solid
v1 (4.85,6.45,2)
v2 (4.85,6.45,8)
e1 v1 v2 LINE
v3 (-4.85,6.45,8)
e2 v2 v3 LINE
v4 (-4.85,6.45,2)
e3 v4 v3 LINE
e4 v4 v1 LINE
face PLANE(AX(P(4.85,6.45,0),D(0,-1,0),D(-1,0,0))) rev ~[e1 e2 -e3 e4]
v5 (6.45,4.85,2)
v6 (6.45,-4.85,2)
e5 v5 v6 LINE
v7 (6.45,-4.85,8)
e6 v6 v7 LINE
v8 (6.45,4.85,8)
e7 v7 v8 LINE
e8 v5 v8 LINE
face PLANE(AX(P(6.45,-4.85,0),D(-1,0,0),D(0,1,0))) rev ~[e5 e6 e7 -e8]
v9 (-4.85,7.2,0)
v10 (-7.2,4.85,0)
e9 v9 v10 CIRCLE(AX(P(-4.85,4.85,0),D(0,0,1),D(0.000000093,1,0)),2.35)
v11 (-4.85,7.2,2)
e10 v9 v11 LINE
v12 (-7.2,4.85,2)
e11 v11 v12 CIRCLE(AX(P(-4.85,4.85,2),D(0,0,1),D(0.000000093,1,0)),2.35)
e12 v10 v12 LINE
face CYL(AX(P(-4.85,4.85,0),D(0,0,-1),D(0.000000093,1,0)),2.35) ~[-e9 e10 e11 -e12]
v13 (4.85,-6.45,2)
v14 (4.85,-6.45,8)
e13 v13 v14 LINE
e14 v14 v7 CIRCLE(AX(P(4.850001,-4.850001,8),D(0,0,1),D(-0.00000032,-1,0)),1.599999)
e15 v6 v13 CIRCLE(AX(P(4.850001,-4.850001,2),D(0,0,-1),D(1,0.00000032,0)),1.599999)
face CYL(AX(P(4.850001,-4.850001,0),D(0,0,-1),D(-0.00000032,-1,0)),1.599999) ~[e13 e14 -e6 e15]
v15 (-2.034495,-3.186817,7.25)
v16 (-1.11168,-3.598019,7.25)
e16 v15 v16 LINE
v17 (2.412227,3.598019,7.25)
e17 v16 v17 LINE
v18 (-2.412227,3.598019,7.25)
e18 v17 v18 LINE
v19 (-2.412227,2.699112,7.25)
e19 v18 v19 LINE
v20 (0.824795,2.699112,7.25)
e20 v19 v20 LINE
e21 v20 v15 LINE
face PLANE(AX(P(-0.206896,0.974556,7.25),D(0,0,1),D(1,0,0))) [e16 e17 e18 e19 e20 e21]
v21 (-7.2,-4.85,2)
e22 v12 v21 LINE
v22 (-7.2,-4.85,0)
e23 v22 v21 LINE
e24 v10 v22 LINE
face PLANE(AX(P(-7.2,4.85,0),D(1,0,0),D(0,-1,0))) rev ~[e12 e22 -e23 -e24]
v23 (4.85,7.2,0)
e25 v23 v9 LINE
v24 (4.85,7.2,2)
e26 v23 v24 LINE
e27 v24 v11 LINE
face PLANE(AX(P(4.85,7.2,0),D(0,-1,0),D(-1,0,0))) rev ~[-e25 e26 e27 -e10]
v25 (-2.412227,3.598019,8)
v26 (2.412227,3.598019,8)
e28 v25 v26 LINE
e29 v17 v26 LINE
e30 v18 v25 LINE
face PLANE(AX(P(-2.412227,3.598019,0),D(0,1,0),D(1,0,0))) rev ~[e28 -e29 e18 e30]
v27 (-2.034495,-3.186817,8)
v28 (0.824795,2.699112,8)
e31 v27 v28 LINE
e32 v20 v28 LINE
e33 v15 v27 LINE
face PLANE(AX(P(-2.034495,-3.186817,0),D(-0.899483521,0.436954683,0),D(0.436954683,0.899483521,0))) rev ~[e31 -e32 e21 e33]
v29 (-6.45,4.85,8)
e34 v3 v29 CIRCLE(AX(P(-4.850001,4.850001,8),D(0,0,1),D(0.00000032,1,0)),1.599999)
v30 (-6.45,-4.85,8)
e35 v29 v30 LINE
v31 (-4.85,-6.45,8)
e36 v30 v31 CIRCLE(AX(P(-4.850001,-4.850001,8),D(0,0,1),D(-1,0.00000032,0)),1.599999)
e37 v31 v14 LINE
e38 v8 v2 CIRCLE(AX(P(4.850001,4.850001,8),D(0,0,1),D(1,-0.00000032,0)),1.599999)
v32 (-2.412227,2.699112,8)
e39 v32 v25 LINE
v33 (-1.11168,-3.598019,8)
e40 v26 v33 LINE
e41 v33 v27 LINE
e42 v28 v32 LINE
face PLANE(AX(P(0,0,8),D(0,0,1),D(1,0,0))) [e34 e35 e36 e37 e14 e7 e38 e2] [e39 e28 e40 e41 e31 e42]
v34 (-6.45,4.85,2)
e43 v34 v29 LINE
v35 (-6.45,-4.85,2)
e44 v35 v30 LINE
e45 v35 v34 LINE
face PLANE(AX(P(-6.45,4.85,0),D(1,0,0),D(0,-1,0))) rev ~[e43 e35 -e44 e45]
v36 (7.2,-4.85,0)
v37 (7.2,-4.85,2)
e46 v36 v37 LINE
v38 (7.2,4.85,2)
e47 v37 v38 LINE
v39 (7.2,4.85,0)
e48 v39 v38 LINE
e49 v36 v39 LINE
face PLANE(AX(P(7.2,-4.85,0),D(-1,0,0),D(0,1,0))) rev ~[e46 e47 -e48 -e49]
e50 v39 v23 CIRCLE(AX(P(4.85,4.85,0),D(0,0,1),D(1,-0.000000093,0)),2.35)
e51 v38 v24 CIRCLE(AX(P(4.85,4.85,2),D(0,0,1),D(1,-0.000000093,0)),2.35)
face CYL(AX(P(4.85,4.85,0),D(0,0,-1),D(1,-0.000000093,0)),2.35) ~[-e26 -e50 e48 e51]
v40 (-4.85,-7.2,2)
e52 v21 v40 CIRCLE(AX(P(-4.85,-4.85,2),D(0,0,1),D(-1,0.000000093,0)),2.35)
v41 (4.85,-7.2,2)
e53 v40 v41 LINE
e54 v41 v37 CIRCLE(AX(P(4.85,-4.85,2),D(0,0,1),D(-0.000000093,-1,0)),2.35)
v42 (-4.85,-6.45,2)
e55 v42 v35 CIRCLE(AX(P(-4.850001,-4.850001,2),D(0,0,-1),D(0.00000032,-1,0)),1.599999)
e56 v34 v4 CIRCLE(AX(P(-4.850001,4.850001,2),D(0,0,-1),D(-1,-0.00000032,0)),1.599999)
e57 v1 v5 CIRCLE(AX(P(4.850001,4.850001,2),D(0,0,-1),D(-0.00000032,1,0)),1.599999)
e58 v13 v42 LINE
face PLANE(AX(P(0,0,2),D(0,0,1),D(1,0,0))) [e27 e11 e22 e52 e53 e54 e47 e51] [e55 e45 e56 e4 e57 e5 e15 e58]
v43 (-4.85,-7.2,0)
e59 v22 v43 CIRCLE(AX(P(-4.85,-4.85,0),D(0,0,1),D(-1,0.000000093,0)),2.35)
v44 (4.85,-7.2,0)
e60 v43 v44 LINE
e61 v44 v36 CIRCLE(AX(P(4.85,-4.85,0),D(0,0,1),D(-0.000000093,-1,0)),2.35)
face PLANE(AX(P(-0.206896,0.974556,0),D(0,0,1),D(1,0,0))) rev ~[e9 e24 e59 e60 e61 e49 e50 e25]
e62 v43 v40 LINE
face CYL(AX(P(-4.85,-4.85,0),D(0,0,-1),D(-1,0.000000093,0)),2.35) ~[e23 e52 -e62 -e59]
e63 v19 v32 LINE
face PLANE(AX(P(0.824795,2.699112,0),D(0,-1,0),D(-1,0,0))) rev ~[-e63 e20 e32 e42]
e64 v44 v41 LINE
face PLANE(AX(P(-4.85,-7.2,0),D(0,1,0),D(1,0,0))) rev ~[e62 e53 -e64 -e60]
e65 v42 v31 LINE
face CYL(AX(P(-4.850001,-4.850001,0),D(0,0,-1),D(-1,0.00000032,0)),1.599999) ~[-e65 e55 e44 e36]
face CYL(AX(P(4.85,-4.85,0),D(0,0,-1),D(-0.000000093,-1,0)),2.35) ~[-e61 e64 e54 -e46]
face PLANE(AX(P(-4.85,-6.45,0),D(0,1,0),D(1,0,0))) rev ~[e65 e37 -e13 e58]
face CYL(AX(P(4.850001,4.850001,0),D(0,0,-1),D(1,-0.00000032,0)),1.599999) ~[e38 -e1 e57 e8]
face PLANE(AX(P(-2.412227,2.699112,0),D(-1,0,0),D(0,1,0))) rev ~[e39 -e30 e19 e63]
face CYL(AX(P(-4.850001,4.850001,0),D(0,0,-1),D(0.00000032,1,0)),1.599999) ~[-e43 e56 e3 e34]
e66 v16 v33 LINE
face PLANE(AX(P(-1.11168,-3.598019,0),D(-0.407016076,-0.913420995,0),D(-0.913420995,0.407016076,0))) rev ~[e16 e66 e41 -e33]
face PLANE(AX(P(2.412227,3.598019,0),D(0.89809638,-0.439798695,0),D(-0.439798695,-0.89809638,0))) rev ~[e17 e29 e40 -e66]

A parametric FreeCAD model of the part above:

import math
import FreeCAD as App
import Part
import Sketcher
from FreeCAD import Vector


def add_polygon(sketch, points):
    """Adds a closed chain of lines whose ends are joined by coincident constraints."""
    first, n = sketch.GeometryCount, len(points)
    for a, b in zip(points, points[1:] + points[:1]):
        sketch.addGeometry(Part.LineSegment(App.Vector(*a, 0), App.Vector(*b, 0)), False)
    for i in range(n):
        sketch.addConstraint(Sketcher.Constraint("Coincident", first + i, 2, first + (i + 1) % n, 1))

doc = App.newDocument("Part")
params = doc.addObject("Spreadsheet::Sheet", "Params")
for row, (alias, value) in enumerate([
    ("sketch1_radius", "1.599999 mm"),
    ("sketch1_radius2", "2.35 mm"),
    ("sketch1_width", "9.7 mm"),
    ("pad1_length", "2 mm"),
    ("sketch2_radius", "1.599999 mm"),
    ("sketch2_width", "9.7 mm"),
    ("pad2_length", "8 mm"),
    ("pad3_length", "7.25 mm"),
], start=1):
    params.set(f"A{row}", alias)
    params.set(f"B{row}", "=" + value)
    params.setAlias(f"B{row}", alias)

body = doc.addObject("PartDesign::Body", "Body")

sketch1 = body.newObject("Sketcher::SketchObject", "Sketch")
sketch1.AttachmentSupport = (doc.getObject("XY_Plane"), [""])
sketch1.MapMode = "FlatFace"
sketch1.addGeometry([
    Part.LineSegment(Vector(4.8, 7.2, 0), Vector(-4.8, 7.2, 0)),
    Part.ArcOfCircle(Part.Circle(Vector(-4.9, 4.9, 0), Vector(0, 0, 1), 2.3), math.radians(90), math.radians(180)),
    Part.LineSegment(Vector(-7.2, 4.8, 0), Vector(-7.2, -4.8, 0)),
    Part.ArcOfCircle(Part.Circle(Vector(-4.9, -4.9, 0), Vector(0, 0, 1), 2.3), math.radians(180), math.radians(270)),
    Part.LineSegment(Vector(-4.8, -7.2, 0), Vector(4.8, -7.2, 0)),
    Part.ArcOfCircle(Part.Circle(Vector(4.9, -4.9, 0), Vector(0, 0, 1), 2.3), math.radians(-90), math.radians(0)),
    Part.LineSegment(Vector(7.2, -4.8, 0), Vector(7.2, 4.8, 0)),
    Part.ArcOfCircle(Part.Circle(Vector(4.9, 4.9, 0), Vector(0, 0, 1), 2.3), math.radians(0), math.radians(90)),
    Part.LineSegment(Vector(6.5, 4.8, 0), Vector(6.5, -4.8, 0)),
    Part.ArcOfCircle(Part.Circle(Vector(4.9, -4.9, 0), Vector(0, 0, 1), 1.6), math.radians(-90), math.radians(0)),
    Part.LineSegment(Vector(4.8, -6.5, 0), Vector(-4.8, -6.5, 0)),
    Part.ArcOfCircle(Part.Circle(Vector(-4.9, -4.9, 0), Vector(0, 0, 1), 1.6), math.radians(180), math.radians(270)),
    Part.LineSegment(Vector(-6.5, -4.8, 0), Vector(-6.5, 4.8, 0)),
    Part.ArcOfCircle(Part.Circle(Vector(-4.9, 4.9, 0), Vector(0, 0, 1), 1.6), math.radians(90), math.radians(180)),
    Part.LineSegment(Vector(-4.8, 6.5, 0), Vector(4.8, 6.5, 0)),
    Part.ArcOfCircle(Part.Circle(Vector(4.9, 4.9, 0), Vector(0, 0, 1), 1.6), math.radians(0), math.radians(90)),
], False)
sketch1.addConstraint([
    Sketcher.Constraint("Tangent", 0, 2, 1, 1),
    Sketcher.Constraint("Tangent", 1, 2, 2, 1),
    Sketcher.Constraint("Tangent", 2, 2, 3, 1),
    Sketcher.Constraint("Tangent", 3, 2, 4, 1),
    Sketcher.Constraint("Tangent", 4, 2, 5, 1),
    Sketcher.Constraint("Tangent", 5, 2, 6, 1),
    Sketcher.Constraint("Tangent", 6, 2, 7, 1),
    Sketcher.Constraint("Tangent", 7, 2, 0, 1),
    Sketcher.Constraint("Tangent", 8, 2, 9, 2),
    Sketcher.Constraint("Tangent", 9, 1, 10, 1),
    Sketcher.Constraint("Tangent", 10, 2, 11, 2),
    Sketcher.Constraint("Tangent", 11, 1, 12, 1),
    Sketcher.Constraint("Tangent", 12, 2, 13, 2),
    Sketcher.Constraint("Tangent", 13, 1, 14, 1),
    Sketcher.Constraint("Tangent", 14, 2, 15, 2),
    Sketcher.Constraint("Tangent", 15, 1, 8, 1),
    Sketcher.Constraint("Horizontal", 0),
    Sketcher.Constraint("Vertical", 2),
    Sketcher.Constraint("Horizontal", 4),
    Sketcher.Constraint("Vertical", 6),
    Sketcher.Constraint("Vertical", 8),
    Sketcher.Constraint("Horizontal", 10),
    Sketcher.Constraint("Vertical", 12),
    Sketcher.Constraint("Horizontal", 14),
    Sketcher.Constraint("Coincident", 9, 3, 5, 3),
    Sketcher.Constraint("Coincident", 11, 3, 3, 3),
    Sketcher.Constraint("Coincident", 13, 3, 1, 3),
    Sketcher.Constraint("Equal", 1, 3),
    Sketcher.Constraint("Equal", 3, 5),
    Sketcher.Constraint("Equal", 5, 7),
    Sketcher.Constraint("Equal", 13, 15),
    Sketcher.Constraint("Symmetric", 1, 3, 5, 3, -1, 1),
    Sketcher.Constraint("Equal", 14, 2),
    Sketcher.Constraint("Radius", 9, 1.599999),
    Sketcher.Constraint("Radius", 1, 2.35),
    Sketcher.Constraint("DistanceX", 0, 2, 0, 1, 9.7),
])
sketch1.setExpression("Constraints[33]", "Params.sketch1_radius")
sketch1.setExpression("Constraints[34]", "Params.sketch1_radius2")
sketch1.setExpression("Constraints[35]", "Params.sketch1_width")
pad1 = body.newObject("PartDesign::Pad", "Pad")
pad1.Profile = sketch1
pad1.setExpression("Length", "Params.pad1_length")

sketch2 = body.newObject("Sketcher::SketchObject", "Sketch001")
sketch2.AttachmentSupport = (doc.getObject("XY_Plane"), [""])
sketch2.MapMode = "FlatFace"
sketch2.addGeometry(Part.LineSegment(Vector(-4.8, -6.5, 0), Vector(4.8, -6.5, 0)), False)
sketch2.addGeometry(Part.ArcOfCircle(Part.Circle(Vector(4.9, -4.9, 0), Vector(0, 0, 1), 1.6), math.radians(-90), math.radians(0)), False)
sketch2.addGeometry(Part.LineSegment(Vector(6.5, -4.8, 0), Vector(6.5, 4.8, 0)), False)
sketch2.addGeometry(Part.ArcOfCircle(Part.Circle(Vector(4.9, 4.9, 0), Vector(0, 0, 1), 1.6), math.radians(0), math.radians(90)), False)
sketch2.addGeometry(Part.LineSegment(Vector(4.8, 6.5, 0), Vector(-4.8, 6.5, 0)), False)
sketch2.addGeometry(Part.ArcOfCircle(Part.Circle(Vector(-4.9, 4.9, 0), Vector(0, 0, 1), 1.6), math.radians(90), math.radians(180)), False)
sketch2.addGeometry(Part.LineSegment(Vector(-6.5, 4.8, 0), Vector(-6.5, -4.8, 0)), False)
sketch2.addGeometry(Part.ArcOfCircle(Part.Circle(Vector(-4.9, -4.9, 0), Vector(0, 0, 1), 1.6), math.radians(180), math.radians(270)), False)
add_polygon(sketch2, [(2.4, 3.6), (-1.1, -3.6), (-2, -3.2), (0.8, 2.7), (-2.4, 2.7), (-2.4, 3.6)])
sketch2.addConstraint([
    Sketcher.Constraint("Tangent", 0, 2, 1, 1),
    Sketcher.Constraint("Tangent", 1, 2, 2, 1),
    Sketcher.Constraint("Tangent", 2, 2, 3, 1),
    Sketcher.Constraint("Tangent", 3, 2, 4, 1),
    Sketcher.Constraint("Tangent", 4, 2, 5, 1),
    Sketcher.Constraint("Tangent", 5, 2, 6, 1),
    Sketcher.Constraint("Tangent", 6, 2, 7, 1),
    Sketcher.Constraint("Tangent", 7, 2, 0, 1),
    Sketcher.Constraint("Horizontal", 0),
    Sketcher.Constraint("Vertical", 2),
    Sketcher.Constraint("Horizontal", 4),
    Sketcher.Constraint("Vertical", 6),
    Sketcher.Constraint("Horizontal", 11),
    Sketcher.Constraint("Vertical", 12),
    Sketcher.Constraint("Horizontal", 13),
    Sketcher.Constraint("Equal", 1, 3),
    Sketcher.Constraint("Equal", 3, 5),
    Sketcher.Constraint("Equal", 5, 7),
    Sketcher.Constraint("Symmetric", 1, 3, 5, 3, -1, 1),
    Sketcher.Constraint("Equal", 4, 2),
    Sketcher.Constraint("Radius", 1, 1.599999),
    Sketcher.Constraint("DistanceX", 0, 1, 0, 2, 9.7),
    Sketcher.Constraint("DistanceY", 8, 2, 9, 2, 0.411202),
    Sketcher.Constraint("DistanceX", 11, 2, 11, 1, 3.237022),
    Sketcher.Constraint("DistanceX", 13, 1, 13, 2, 4.824454),
    Sketcher.Constraint("DistanceY", 12, 1, 12, 2, 0.898907),
    Sketcher.Constraint("DistanceX", 8, 2, -1, 1, 1.11168),
    Sketcher.Constraint("DistanceY", 8, 2, -1, 1, 3.598019),
    Sketcher.Constraint("DistanceY", -1, 1, 10, 2, 2.699112),
    Sketcher.Constraint("DistanceX", 9, 2, 10, 2, 2.85929),
    Sketcher.Constraint("Distance", 8, 8.012545),
])
sketch2.setExpression("Constraints[26]", "Params.sketch2_radius")
sketch2.setExpression("Constraints[27]", "Params.sketch2_width")
pad2 = body.newObject("PartDesign::Pad", "Pad001")
pad2.Profile = sketch2
pad2.setExpression("Length", "Params.pad2_length")

sketch3 = body.newObject("Sketcher::SketchObject", "Sketch002")
sketch3.AttachmentSupport = (doc.getObject("XY_Plane"), [""])
sketch3.MapMode = "FlatFace"
add_polygon(sketch3, [(0.8, 2.7), (-2, -3.2), (-1.1, -3.6), (2.4, 3.6), (-2.4, 3.6), (-2.4, 2.7)])
sketch3.addConstraint([
    Sketcher.Constraint("Horizontal", 3),
    Sketcher.Constraint("Vertical", 4),
    Sketcher.Constraint("Horizontal", 5),
    Sketcher.Constraint("DistanceY", 1, 2, 0, 2, 0.411202),
    Sketcher.Constraint("DistanceX", 3, 2, 3, 1, 4.824454),
    Sketcher.Constraint("DistanceX", 5, 1, 5, 2, 3.237022),
    Sketcher.Constraint("DistanceY", 4, 2, 4, 1, 0.898907),
    Sketcher.Constraint("DistanceX", 1, 2, -1, 1, 1.11168),
    Sketcher.Constraint("DistanceY", 1, 2, -1, 1, 3.598019),
    Sketcher.Constraint("DistanceY", -1, 1, 2, 2, 3.598019),
    Sketcher.Constraint("DistanceX", 3, 2, 0, 2, 0.377732),
    Sketcher.Constraint("Distance", 1, 1.010284),
])
pad3 = body.newObject("PartDesign::Pad", "Pad002")
pad3.Profile = sketch3
pad3.setExpression("Length", "Params.pad3_length")

doc.recompute()
